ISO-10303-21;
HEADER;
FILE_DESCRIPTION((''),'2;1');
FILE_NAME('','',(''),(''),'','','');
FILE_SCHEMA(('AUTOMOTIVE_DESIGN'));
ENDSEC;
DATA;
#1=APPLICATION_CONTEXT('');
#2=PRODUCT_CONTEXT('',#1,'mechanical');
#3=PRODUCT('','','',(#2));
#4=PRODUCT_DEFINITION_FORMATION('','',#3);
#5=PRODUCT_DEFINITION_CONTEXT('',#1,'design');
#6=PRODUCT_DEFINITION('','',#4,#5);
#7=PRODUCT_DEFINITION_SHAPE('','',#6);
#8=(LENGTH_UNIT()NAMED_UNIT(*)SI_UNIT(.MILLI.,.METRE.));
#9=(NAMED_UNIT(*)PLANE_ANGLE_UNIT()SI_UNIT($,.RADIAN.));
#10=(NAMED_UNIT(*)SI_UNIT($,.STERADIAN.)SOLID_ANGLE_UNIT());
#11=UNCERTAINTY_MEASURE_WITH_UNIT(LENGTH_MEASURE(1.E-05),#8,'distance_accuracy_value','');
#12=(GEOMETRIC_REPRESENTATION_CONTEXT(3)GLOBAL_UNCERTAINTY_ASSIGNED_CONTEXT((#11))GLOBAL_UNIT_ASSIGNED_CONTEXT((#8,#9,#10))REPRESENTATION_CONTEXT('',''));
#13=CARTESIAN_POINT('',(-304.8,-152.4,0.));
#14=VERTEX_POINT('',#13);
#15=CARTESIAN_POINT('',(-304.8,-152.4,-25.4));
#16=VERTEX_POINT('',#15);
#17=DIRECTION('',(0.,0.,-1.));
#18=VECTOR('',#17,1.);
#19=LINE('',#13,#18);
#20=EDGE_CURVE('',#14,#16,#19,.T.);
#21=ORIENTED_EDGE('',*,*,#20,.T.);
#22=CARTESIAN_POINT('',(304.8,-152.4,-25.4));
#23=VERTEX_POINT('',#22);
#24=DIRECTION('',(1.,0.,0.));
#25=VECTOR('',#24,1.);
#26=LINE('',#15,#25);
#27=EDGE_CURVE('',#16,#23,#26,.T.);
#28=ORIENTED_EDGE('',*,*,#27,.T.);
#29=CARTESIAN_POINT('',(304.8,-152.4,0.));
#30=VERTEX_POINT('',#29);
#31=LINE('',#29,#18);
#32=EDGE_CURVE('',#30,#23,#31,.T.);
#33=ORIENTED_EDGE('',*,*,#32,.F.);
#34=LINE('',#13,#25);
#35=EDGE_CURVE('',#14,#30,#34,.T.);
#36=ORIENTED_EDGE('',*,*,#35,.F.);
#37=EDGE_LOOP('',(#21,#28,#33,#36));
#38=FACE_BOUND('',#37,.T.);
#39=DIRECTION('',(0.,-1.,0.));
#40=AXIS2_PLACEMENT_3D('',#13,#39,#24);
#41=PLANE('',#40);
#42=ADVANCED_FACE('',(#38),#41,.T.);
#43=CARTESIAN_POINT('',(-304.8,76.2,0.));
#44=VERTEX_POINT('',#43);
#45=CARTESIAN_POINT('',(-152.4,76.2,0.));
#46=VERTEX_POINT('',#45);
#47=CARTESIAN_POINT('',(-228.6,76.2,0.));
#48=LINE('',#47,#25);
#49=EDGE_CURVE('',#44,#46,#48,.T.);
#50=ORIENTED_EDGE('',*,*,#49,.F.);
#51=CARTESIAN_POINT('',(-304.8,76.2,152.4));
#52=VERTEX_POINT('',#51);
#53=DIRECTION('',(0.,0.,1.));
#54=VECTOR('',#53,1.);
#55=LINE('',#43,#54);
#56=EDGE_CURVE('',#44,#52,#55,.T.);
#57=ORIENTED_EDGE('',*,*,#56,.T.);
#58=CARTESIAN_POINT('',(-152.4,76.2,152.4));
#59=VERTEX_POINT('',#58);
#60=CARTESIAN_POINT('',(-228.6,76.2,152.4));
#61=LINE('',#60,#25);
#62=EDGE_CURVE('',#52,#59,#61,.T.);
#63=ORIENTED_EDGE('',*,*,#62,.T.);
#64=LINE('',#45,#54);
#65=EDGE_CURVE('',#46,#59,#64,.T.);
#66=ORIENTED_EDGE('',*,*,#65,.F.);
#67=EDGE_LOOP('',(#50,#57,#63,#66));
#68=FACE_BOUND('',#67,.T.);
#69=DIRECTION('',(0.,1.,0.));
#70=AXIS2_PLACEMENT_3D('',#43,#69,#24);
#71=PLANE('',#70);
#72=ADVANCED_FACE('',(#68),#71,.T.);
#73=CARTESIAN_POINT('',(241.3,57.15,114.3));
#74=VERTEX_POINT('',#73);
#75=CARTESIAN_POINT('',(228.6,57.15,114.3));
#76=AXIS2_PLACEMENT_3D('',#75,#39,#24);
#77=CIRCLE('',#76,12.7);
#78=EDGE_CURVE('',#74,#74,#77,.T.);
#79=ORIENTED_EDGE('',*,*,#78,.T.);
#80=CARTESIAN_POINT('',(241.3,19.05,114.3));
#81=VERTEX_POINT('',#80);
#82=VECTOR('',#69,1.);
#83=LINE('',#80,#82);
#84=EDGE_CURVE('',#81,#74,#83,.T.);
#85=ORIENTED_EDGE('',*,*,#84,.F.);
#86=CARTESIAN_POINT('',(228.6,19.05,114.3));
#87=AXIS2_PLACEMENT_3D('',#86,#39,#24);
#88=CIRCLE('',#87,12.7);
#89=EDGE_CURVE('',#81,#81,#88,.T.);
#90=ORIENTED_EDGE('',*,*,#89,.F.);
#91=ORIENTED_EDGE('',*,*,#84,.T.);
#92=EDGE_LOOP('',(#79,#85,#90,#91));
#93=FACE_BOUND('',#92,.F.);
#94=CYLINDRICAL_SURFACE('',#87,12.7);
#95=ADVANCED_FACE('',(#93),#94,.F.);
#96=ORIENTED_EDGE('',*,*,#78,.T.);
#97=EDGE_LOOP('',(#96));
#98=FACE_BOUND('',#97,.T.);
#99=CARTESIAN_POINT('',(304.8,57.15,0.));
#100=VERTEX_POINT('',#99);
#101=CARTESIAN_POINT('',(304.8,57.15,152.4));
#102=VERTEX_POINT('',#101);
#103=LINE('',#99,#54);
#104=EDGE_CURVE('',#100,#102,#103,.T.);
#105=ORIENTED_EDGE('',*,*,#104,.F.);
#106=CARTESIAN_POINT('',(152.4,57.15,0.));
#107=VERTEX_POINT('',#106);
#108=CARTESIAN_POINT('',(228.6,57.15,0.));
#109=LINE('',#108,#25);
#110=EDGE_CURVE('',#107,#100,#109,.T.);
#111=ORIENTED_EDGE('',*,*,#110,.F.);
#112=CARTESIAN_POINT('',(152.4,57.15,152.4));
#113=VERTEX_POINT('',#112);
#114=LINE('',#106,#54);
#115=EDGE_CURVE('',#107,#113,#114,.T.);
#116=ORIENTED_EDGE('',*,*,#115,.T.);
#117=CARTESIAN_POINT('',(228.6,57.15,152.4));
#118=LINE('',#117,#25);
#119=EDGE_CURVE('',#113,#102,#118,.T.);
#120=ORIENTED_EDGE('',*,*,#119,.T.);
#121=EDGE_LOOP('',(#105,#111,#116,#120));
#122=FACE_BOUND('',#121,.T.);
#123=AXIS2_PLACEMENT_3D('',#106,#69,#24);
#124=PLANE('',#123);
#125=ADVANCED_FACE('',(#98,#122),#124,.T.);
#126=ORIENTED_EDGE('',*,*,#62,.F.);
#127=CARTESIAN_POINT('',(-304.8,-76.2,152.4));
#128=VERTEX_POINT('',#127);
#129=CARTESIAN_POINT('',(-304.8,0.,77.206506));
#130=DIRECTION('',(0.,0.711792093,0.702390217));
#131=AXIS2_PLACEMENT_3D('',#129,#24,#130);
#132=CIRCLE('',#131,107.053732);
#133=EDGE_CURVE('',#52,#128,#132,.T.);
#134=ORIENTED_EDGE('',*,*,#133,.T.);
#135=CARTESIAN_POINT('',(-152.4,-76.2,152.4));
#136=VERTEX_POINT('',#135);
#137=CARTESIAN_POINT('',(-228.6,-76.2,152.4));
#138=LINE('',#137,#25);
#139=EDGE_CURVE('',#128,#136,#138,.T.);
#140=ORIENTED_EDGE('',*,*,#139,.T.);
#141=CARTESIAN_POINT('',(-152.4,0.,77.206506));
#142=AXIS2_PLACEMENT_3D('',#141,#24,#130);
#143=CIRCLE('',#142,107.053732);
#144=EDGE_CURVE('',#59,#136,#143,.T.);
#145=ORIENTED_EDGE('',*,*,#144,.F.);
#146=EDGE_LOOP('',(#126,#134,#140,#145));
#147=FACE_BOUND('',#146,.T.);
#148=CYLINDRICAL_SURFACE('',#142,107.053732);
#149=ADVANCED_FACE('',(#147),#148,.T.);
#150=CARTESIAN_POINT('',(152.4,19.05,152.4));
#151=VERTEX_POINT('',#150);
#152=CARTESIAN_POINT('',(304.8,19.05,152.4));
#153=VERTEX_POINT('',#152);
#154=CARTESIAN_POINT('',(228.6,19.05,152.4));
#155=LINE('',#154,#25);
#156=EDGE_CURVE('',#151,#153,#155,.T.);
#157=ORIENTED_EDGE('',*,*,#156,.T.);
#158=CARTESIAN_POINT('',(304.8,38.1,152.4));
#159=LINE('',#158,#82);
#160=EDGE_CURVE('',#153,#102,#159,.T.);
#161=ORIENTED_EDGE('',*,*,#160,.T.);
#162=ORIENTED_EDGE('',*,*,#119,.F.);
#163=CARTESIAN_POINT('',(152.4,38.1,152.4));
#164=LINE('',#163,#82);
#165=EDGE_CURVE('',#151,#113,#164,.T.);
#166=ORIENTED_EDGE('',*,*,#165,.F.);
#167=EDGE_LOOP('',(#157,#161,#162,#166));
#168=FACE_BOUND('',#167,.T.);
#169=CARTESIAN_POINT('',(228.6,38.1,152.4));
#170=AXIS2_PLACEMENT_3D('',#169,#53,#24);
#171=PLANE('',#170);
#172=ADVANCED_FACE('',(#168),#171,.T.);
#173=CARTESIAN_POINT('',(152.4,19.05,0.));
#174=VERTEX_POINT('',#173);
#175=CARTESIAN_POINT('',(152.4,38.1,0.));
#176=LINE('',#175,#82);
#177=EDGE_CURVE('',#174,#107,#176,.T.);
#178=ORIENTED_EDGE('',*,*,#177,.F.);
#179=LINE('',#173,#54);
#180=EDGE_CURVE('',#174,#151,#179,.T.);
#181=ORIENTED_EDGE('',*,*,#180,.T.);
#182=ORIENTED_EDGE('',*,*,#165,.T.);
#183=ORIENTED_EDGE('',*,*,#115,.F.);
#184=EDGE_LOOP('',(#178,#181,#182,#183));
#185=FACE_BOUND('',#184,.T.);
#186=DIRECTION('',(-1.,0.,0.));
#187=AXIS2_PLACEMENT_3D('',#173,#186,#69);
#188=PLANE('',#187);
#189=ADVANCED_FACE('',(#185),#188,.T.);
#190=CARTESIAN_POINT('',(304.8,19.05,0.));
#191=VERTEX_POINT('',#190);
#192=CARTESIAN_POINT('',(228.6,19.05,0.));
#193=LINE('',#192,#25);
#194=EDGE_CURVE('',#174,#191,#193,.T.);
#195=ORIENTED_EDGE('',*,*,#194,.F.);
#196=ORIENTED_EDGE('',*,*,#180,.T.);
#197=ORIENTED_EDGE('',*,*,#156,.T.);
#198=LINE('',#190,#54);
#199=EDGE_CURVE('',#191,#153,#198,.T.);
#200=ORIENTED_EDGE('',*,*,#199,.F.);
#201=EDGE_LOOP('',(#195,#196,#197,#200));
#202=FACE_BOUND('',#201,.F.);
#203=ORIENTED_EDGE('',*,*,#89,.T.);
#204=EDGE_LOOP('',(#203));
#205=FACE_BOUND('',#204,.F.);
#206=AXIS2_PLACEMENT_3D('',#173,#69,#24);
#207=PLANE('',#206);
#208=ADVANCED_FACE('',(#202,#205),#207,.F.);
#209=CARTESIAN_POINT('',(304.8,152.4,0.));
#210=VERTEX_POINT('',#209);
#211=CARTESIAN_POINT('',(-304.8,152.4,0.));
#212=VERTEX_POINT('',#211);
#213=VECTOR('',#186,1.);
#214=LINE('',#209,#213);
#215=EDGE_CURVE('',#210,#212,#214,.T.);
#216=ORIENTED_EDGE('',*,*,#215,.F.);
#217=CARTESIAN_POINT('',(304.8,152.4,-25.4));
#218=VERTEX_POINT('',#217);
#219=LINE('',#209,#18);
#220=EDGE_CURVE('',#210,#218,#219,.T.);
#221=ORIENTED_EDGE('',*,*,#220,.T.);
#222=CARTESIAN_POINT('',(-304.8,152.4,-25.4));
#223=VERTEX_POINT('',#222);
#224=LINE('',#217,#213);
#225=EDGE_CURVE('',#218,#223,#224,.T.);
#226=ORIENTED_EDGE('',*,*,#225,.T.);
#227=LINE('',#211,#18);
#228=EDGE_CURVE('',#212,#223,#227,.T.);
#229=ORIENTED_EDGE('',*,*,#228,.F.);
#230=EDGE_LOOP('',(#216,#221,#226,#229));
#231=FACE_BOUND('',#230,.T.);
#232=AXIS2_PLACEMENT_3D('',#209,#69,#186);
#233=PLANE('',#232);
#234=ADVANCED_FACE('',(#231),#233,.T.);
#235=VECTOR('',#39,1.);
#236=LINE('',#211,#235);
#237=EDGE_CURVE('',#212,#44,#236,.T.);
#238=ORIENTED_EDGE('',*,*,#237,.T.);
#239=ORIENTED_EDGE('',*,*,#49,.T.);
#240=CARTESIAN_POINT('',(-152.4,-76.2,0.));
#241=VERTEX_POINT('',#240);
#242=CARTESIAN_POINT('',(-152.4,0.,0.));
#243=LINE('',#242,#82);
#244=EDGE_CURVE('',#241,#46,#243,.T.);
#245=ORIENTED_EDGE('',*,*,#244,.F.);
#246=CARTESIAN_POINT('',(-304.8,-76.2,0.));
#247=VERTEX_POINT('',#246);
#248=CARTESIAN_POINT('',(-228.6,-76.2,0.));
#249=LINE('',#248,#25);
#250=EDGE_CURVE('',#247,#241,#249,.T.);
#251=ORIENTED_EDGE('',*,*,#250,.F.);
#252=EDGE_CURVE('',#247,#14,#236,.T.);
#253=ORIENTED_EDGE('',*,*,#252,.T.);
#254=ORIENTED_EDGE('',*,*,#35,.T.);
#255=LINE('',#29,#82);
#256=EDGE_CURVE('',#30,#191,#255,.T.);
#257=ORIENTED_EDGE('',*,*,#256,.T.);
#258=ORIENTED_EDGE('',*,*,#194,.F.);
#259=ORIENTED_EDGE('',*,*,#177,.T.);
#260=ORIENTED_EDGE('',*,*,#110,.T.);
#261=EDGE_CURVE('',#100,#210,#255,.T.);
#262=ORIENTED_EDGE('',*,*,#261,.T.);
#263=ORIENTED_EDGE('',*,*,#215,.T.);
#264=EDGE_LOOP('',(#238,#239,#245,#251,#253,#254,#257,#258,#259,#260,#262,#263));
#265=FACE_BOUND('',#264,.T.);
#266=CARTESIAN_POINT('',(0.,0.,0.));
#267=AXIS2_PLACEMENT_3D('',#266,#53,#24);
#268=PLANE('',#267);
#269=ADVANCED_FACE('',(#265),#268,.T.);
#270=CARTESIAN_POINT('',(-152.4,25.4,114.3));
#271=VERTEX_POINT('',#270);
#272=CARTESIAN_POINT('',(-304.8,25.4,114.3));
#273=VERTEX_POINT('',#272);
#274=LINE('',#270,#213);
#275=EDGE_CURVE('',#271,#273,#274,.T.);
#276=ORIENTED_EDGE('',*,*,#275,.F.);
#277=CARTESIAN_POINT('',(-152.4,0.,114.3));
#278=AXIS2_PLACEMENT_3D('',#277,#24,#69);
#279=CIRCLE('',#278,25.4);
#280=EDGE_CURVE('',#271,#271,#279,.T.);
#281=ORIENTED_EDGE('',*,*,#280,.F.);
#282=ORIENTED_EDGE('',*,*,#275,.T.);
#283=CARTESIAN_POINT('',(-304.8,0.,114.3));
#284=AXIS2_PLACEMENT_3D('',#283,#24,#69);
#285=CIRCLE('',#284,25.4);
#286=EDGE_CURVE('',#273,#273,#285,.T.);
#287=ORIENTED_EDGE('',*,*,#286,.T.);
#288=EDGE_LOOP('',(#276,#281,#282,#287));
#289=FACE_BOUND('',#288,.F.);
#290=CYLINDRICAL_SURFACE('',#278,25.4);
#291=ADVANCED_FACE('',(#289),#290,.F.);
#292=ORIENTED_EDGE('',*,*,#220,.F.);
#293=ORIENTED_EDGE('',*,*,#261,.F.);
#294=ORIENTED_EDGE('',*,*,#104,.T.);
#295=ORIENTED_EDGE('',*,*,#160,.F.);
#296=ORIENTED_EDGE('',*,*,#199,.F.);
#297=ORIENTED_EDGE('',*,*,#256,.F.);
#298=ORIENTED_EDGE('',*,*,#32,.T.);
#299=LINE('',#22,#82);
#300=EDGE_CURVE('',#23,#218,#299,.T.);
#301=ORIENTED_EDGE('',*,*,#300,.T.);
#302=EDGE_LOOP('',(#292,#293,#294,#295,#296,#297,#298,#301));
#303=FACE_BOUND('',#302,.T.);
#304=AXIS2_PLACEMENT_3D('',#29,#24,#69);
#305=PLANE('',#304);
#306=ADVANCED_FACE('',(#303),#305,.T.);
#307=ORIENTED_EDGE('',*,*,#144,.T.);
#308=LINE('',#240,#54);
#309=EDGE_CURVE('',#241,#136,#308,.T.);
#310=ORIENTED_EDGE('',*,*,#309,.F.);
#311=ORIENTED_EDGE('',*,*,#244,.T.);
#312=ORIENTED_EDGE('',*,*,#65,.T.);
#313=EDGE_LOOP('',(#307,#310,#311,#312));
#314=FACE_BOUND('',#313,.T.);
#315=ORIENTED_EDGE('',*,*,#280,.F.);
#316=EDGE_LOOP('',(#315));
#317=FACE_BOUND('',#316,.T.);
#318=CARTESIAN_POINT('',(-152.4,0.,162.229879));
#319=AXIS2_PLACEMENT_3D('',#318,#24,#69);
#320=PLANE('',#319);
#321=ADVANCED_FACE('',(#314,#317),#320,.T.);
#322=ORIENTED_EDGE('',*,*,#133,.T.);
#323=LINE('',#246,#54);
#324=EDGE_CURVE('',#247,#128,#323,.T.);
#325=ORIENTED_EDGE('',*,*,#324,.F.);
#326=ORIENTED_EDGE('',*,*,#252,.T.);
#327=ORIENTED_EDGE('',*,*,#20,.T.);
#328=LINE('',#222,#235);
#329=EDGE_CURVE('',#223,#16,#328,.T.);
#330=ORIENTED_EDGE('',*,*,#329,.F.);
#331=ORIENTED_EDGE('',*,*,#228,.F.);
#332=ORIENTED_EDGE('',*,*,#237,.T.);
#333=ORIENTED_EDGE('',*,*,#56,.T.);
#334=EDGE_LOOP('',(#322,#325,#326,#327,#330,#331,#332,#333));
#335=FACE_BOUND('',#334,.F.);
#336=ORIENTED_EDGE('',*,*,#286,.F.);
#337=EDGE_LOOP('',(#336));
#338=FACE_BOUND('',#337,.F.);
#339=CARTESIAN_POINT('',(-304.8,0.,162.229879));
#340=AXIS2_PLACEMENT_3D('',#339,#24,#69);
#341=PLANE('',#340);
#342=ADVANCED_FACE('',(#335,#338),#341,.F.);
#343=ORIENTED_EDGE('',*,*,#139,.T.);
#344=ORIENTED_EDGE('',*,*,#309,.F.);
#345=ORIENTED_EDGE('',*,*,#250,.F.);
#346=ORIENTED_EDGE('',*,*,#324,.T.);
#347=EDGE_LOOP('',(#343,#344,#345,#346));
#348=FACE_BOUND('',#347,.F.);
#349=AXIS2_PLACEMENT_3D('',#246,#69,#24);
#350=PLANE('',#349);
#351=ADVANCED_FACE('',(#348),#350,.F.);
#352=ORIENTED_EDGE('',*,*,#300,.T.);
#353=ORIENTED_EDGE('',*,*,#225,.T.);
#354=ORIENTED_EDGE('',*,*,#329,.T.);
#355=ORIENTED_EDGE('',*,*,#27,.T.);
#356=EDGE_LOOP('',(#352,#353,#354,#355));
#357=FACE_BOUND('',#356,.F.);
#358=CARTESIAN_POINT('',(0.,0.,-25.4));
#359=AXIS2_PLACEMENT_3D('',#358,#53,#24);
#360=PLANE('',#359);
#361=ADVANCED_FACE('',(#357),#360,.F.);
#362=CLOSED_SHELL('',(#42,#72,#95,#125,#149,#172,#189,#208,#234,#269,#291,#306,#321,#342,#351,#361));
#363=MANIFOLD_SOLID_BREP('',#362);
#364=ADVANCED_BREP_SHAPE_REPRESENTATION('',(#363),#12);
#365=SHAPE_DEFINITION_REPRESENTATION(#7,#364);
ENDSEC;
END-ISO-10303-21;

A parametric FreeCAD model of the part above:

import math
import FreeCAD as App
import Part
import Sketcher
from FreeCAD import Vector
Q = App.Units.Quantity

doc = App.newDocument("Part")
body = doc.addObject("PartDesign::Body", "Body")

# Sketch on XY plane
sketch1 = body.newObject("Sketcher::SketchObject", "Sketch")
sketch1.AttachmentSupport = (doc.getObject("XY_Plane"), [""])
sketch1.MapMode = "FlatFace"
sketch1.addGeometry(Part.LineSegment(Vector(305, 152, 0), Vector(-305, 152, 0)), False)
sketch1.addGeometry(Part.LineSegment(Vector(-305, 152, 0), Vector(-305, -152, 0)), False)
sketch1.addGeometry(Part.LineSegment(Vector(-305, -152, 0), Vector(305, -152, 0)), False)
sketch1.addGeometry(Part.LineSegment(Vector(305, -152, 0), Vector(305, 152, 0)), False)
sketch1.addConstraint(Sketcher.Constraint("Coincident", 0, 2, 1, 1))
sketch1.addConstraint(Sketcher.Constraint("Coincident", 1, 2, 2, 1))
sketch1.addConstraint(Sketcher.Constraint("Coincident", 2, 2, 3, 1))
sketch1.addConstraint(Sketcher.Constraint("Coincident", 3, 2, 0, 1))
sketch1.addConstraint(Sketcher.Constraint("Horizontal", 0))
sketch1.addConstraint(Sketcher.Constraint("Vertical", 1))
sketch1.addConstraint(Sketcher.Constraint("Horizontal", 2))
sketch1.addConstraint(Sketcher.Constraint("Vertical", 3))
sketch1.addConstraint(Sketcher.Constraint("Symmetric", 0, 2, 2, 2, -1, 1))
sketch1.addConstraint(Sketcher.Constraint("DistanceX", 0, 2, 0, 1, Q("24 in")))
sketch1.addConstraint(Sketcher.Constraint("DistanceY", 1, 2, 1, 1, Q("12 in")))
pad1 = body.newObject("PartDesign::Pad", "Pad")
pad1.Profile = sketch1
pad1.Length = Q("1 in")
pad1.Reversed = True

# Sketch on XY plane
sketch2 = body.newObject("Sketcher::SketchObject", "Sketch001")
sketch2.AttachmentSupport = (doc.getObject("XY_Plane"), [""])
sketch2.MapMode = "FlatFace"
sketch2.addGeometry(Part.LineSegment(Vector(-305, 76, 0), Vector(-305, -76, 0)), False)
sketch2.addGeometry(Part.LineSegment(Vector(-305, -76, 0), Vector(-152, -76, 0)), False)
sketch2.addGeometry(Part.LineSegment(Vector(-152, -76, 0), Vector(-152, 76, 0)), False)
sketch2.addGeometry(Part.LineSegment(Vector(-152, 76, 0), Vector(-305, 76, 0)), False)
sketch2.addConstraint(Sketcher.Constraint("Coincident", 0, 2, 1, 1))
sketch2.addConstraint(Sketcher.Constraint("Coincident", 1, 2, 2, 1))
sketch2.addConstraint(Sketcher.Constraint("Coincident", 2, 2, 3, 1))
sketch2.addConstraint(Sketcher.Constraint("Coincident", 3, 2, 0, 1))
sketch2.addConstraint(Sketcher.Constraint("Vertical", 0))
sketch2.addConstraint(Sketcher.Constraint("Horizontal", 1))
sketch2.addConstraint(Sketcher.Constraint("Vertical", 2))
sketch2.addConstraint(Sketcher.Constraint("Horizontal", 3))
sketch2.addConstraint(Sketcher.Constraint("Equal", 3, 0))
sketch2.addConstraint(Sketcher.Constraint("DistanceX", 1, 1, 1, 2, Q("6 in")))
sketch2.addConstraint(Sketcher.Constraint("DistanceX", 0, 2, -1, 1, Q("12 in")))
sketch2.addConstraint(Sketcher.Constraint("DistanceY", 0, 2, -1, 1, Q("3 in")))
pad2 = body.newObject("PartDesign::Pad", "Pad001")
pad2.Profile = sketch2
pad2.Length = Q("6 in")

# Sketch on YZ plane
sketch3 = body.newObject("Sketcher::SketchObject", "Sketch002")
sketch3.AttachmentSupport = (doc.getObject("YZ_Plane"), [""])
sketch3.MapMode = "FlatFace"
sketch3.AttachmentOffset = App.Placement(Vector(0, 0, -6 * 25.4), App.Rotation())
sketch3.addGeometry(Part.Circle(Vector(0, 114, 0), Vector(0, 0, 1), 25), False)
sketch3.addConstraint(Sketcher.Constraint("PointOnObject", 0, 3, -2))
sketch3.addConstraint(Sketcher.Constraint("Diameter", 0, Q("2 in")))
sketch3.addConstraint(Sketcher.Constraint("DistanceY", -1, 1, 0, 3, Q("4.5 in")))
pocket1 = body.newObject("PartDesign::Pocket", "Pocket")
pocket1.Profile = sketch3
pocket1.Type = "ThroughAll"

# Sketch on XY plane
sketch4 = body.newObject("Sketcher::SketchObject", "Sketch003")
sketch4.AttachmentSupport = (doc.getObject("XY_Plane"), [""])
sketch4.MapMode = "FlatFace"
sketch4.addGeometry(Part.LineSegment(Vector(152, 57, 0), Vector(152, 19, 0)), False)
sketch4.addGeometry(Part.LineSegment(Vector(152, 19, 0), Vector(305, 19, 0)), False)
sketch4.addGeometry(Part.LineSegment(Vector(305, 19, 0), Vector(305, 57, 0)), False)
sketch4.addGeometry(Part.LineSegment(Vector(305, 57, 0), Vector(152, 57, 0)), False)
sketch4.addConstraint(Sketcher.Constraint("Coincident", 0, 2, 1, 1))
sketch4.addConstraint(Sketcher.Constraint("Coincident", 1, 2, 2, 1))
sketch4.addConstraint(Sketcher.Constraint("Coincident", 2, 2, 3, 1))
sketch4.addConstraint(Sketcher.Constraint("Coincident", 3, 2, 0, 1))
sketch4.addConstraint(Sketcher.Constraint("Vertical", 0))
sketch4.addConstraint(Sketcher.Constraint("Horizontal", 1))
sketch4.addConstraint(Sketcher.Constraint("Vertical", 2))
sketch4.addConstraint(Sketcher.Constraint("Horizontal", 3))
sketch4.addConstraint(Sketcher.Constraint("DistanceX", 1, 1, 1, 2, Q("6 in")))
sketch4.addConstraint(Sketcher.Constraint("DistanceY", 0, 2, 0, 1, Q("1.5 in")))
sketch4.addConstraint(Sketcher.Constraint("DistanceX", -1, 1, 0, 2, Q("6 in")))
sketch4.addConstraint(Sketcher.Constraint("DistanceY", -1, 1, 0, 2, Q("0.75 in")))
pad3 = body.newObject("PartDesign::Pad", "Pad002")
pad3.Profile = sketch4
pad3.Length = Q("6 in")

# Sketch on XZ plane
sketch5 = body.newObject("Sketcher::SketchObject", "Sketch004")
sketch5.AttachmentSupport = (doc.getObject("XZ_Plane"), [""])
sketch5.MapMode = "FlatFace"
sketch5.AttachmentOffset = App.Placement(Vector(0, 0, -0.75 * 25.4), App.Rotation())
sketch5.addGeometry(Part.Circle(Vector(229, 114, 0), Vector(0, 0, 1), 13), False)
sketch5.addConstraint(Sketcher.Constraint("Diameter", 0, Q("1 in")))
sketch5.addConstraint(Sketcher.Constraint("DistanceX", -1, 1, 0, 3, Q("9 in")))
sketch5.addConstraint(Sketcher.Constraint("DistanceY", -1, 1, 0, 3, Q("4.5 in")))
pocket2 = body.newObject("PartDesign::Pocket", "Pocket001")
pocket2.Profile = sketch5
pocket2.Type = "ThroughAll"

# Sketch on YZ plane
sketch6 = body.newObject("Sketcher::SketchObject", "Sketch005")
sketch6.AttachmentSupport = (doc.getObject("YZ_Plane"), [""])
sketch6.MapMode = "FlatFace"
sketch6.AttachmentOffset = App.Placement(Vector(0, 0, -6 * 25.4), App.Rotation())
sketch6.addGeometry(Part.LineSegment(Vector(-76, 152, 0), Vector(76, 152, 0)), False)
sketch6.addGeometry(Part.ArcOfCircle(Part.Circle(Vector(0, 77, 0), Vector(0, 0, 1), 107), math.radians(45), math.radians(135)), False)
sketch6.addConstraint(Sketcher.Constraint("Coincident", 0, 1, 1, 2))
sketch6.addConstraint(Sketcher.Constraint("Coincident", 1, 1, 0, 2))
sketch6.addConstraint(Sketcher.Constraint("Horizontal", 0))
sketch6.addConstraint(Sketcher.Constraint("PointOnObject", 1, 3, -2))
sketch6.addConstraint(Sketcher.Constraint("DistanceX", 0, 1, 0, 2, Q("6 in")))
sketch6.addConstraint(Sketcher.Constraint("DistanceY", -1, 1, 0, 1, Q("6 in")))
sketch6.addConstraint(Sketcher.Constraint("Radius", 1, 107.053732))
pad4 = body.newObject("PartDesign::Pad", "Pad003")
pad4.Profile = sketch6
pad4.Length = Q("6 in")
pad4.Reversed = True

doc.recompute()
